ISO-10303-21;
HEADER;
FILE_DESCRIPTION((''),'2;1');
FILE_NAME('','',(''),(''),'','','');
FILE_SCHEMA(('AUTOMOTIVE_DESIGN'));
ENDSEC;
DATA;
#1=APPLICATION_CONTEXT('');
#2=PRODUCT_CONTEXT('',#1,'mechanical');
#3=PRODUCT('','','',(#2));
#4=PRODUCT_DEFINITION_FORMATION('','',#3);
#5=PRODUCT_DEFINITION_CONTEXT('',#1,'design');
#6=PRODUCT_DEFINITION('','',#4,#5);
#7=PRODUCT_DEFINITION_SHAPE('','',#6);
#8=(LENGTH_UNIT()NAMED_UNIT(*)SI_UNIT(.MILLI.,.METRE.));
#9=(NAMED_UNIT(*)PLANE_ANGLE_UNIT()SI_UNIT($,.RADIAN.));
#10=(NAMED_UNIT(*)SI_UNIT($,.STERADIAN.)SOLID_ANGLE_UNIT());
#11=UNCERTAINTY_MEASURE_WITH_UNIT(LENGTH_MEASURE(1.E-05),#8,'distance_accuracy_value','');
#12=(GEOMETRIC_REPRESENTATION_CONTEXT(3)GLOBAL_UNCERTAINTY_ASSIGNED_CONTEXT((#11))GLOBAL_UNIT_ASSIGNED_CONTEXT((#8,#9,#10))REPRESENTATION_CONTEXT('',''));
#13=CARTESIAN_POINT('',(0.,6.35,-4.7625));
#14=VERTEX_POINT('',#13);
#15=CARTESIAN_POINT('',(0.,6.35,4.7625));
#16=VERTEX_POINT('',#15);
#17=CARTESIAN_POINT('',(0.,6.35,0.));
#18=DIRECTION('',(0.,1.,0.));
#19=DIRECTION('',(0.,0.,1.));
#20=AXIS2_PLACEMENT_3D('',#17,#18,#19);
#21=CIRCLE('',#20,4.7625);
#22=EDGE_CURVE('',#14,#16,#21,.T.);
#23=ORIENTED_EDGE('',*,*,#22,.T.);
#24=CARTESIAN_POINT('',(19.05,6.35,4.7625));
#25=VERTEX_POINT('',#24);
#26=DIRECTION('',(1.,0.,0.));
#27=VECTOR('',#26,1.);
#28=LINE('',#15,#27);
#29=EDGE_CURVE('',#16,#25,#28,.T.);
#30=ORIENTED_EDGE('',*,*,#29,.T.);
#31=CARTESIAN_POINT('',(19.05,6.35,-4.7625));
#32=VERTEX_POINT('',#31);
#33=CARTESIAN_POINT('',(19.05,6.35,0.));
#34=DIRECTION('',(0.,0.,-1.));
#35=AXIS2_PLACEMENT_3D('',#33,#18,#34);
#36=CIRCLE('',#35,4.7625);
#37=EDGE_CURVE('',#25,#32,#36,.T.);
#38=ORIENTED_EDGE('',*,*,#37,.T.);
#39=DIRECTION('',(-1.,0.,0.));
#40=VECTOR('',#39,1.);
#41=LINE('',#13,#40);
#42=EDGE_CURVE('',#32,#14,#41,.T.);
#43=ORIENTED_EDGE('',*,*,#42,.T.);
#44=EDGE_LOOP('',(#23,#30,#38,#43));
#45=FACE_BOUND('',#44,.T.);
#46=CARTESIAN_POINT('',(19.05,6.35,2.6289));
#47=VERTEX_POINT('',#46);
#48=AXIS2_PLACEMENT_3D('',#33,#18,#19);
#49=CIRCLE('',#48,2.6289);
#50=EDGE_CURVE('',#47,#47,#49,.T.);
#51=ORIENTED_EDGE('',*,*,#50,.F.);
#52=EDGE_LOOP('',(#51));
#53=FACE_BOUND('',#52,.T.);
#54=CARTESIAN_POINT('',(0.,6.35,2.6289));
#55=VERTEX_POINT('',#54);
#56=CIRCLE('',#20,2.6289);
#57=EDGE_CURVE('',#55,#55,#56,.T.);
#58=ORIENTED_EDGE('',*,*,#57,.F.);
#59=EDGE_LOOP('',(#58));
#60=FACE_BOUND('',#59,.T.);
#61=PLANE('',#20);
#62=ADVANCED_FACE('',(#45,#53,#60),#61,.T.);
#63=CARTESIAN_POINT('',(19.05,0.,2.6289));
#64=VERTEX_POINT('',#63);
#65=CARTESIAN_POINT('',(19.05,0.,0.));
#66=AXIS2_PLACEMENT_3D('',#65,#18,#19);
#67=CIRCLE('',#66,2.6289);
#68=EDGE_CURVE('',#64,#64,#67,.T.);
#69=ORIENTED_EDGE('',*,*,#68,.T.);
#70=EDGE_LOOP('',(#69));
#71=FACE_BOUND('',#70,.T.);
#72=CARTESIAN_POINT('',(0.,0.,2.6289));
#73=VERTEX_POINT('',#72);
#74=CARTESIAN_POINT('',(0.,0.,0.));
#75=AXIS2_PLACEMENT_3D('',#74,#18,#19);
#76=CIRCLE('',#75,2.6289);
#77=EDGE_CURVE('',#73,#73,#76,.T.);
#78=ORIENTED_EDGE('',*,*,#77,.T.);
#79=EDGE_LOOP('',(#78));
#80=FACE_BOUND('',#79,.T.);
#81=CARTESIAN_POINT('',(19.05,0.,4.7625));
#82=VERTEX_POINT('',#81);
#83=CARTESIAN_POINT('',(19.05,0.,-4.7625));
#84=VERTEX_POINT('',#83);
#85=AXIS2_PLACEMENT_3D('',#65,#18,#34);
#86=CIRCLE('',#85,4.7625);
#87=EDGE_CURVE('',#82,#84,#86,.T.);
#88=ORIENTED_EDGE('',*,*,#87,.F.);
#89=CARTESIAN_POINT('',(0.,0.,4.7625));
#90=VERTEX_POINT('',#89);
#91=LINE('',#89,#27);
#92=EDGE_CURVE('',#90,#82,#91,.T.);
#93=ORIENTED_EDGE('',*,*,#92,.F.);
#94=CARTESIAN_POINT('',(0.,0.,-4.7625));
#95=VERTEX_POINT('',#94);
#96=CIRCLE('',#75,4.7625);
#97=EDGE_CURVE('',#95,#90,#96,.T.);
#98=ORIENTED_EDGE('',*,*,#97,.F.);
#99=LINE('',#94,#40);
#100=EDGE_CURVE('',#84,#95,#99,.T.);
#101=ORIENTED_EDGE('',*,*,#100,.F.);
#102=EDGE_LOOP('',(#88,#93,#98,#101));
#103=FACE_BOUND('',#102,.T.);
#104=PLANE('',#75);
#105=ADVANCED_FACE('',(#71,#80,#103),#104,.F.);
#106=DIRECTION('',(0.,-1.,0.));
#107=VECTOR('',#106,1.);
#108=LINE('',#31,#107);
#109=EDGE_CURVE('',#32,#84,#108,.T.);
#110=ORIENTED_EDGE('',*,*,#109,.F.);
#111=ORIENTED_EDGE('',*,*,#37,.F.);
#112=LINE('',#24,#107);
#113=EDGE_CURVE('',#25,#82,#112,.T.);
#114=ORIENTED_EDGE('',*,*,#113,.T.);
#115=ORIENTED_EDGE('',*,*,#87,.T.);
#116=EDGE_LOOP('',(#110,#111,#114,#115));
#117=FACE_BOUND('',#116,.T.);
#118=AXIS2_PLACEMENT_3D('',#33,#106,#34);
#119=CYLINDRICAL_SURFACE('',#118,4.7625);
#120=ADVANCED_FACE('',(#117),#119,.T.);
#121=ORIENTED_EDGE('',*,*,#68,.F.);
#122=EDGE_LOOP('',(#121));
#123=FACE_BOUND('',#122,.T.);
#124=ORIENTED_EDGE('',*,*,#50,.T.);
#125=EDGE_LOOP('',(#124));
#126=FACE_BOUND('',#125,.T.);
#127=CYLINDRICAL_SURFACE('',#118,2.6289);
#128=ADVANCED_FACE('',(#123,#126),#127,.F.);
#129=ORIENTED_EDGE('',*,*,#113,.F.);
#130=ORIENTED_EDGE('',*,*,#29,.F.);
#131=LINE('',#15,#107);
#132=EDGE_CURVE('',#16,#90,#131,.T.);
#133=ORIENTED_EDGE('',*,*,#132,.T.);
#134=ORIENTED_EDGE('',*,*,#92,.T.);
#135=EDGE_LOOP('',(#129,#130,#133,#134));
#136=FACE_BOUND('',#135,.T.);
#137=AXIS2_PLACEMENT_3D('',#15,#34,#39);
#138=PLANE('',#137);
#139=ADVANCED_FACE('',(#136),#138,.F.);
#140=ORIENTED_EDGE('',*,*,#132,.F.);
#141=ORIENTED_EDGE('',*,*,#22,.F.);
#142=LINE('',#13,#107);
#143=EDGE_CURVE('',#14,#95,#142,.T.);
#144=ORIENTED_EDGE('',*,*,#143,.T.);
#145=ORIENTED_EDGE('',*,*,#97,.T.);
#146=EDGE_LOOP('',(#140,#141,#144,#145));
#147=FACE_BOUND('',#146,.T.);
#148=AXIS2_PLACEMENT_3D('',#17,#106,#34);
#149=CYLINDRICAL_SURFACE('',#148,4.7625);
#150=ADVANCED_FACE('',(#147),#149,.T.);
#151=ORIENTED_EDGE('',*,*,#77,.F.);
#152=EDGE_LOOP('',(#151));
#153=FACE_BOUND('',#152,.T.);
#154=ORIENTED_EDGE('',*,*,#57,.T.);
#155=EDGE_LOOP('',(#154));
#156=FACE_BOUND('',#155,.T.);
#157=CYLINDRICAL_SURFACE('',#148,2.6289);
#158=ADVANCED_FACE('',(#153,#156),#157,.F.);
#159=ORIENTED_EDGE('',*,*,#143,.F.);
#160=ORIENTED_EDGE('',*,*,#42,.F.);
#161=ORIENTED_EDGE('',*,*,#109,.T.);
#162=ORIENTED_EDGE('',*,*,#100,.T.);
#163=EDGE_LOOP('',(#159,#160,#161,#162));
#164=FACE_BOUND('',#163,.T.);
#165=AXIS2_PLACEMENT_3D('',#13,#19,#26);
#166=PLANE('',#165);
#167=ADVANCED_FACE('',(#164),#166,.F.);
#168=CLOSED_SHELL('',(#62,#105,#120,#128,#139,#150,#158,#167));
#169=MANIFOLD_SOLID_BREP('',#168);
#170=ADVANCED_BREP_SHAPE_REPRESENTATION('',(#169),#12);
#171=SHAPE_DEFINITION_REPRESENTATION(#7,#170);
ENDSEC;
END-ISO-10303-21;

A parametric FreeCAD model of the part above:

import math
import FreeCAD as App
import Part
import Sketcher
Q = App.Units.Quantity

doc = App.newDocument("Part")
body = doc.addObject("PartDesign::Body", "Body")

sketch1 = doc.addObject("Sketcher::SketchObject", "Sketch")
body.addObject(sketch1)
sketch1.AttachmentSupport = (doc.XZ_Plane, [""])
sketch1.MapMode = "FlatFace"
sketch1.addGeometry(Part.LineSegment(App.Vector(19.1, -4.8, 0), App.Vector(0, -4.8, 0)), False)
sketch1.addGeometry(Part.ArcOfCircle(Part.Circle(App.Vector(0, 0, 0), App.Vector(0, 0, 1), 4.8), math.radians(90), math.radians(270)), False)
sketch1.addGeometry(Part.LineSegment(App.Vector(0, 4.8, 0), App.Vector(19.1, 4.8, 0)), False)
sketch1.addGeometry(Part.ArcOfCircle(Part.Circle(App.Vector(19.1, 0, 0), App.Vector(0, 0, 1), 4.8), math.radians(-90), math.radians(90)), False)
sketch1.addGeometry(Part.Circle(App.Vector(19.1, 0, 0), App.Vector(0, 0, 1), 2.6), False)
sketch1.addGeometry(Part.Circle(App.Vector(0, 0, 0), App.Vector(0, 0, 1), 2.6), False)
sketch1.addConstraint(Sketcher.Constraint("Tangent", 0, 2, 1, 2))
sketch1.addConstraint(Sketcher.Constraint("Tangent", 1, 1, 2, 1))
sketch1.addConstraint(Sketcher.Constraint("Tangent", 2, 2, 3, 2))
sketch1.addConstraint(Sketcher.Constraint("Tangent", 3, 1, 0, 1))
sketch1.addConstraint(Sketcher.Constraint("Horizontal", 0))
sketch1.addConstraint(Sketcher.Constraint("Horizontal", 2))
sketch1.addConstraint(Sketcher.Constraint("Coincident", 1, 3, -1, 1))
sketch1.addConstraint(Sketcher.Constraint("Coincident", 5, 3, -1, 1))
sketch1.addConstraint(Sketcher.Constraint("Coincident", 4, 3, 3, 3))
sketch1.addConstraint(Sketcher.Constraint("Equal", 4, 5))
sketch1.addConstraint(Sketcher.Constraint("Diameter", 4, Q("0.207 in")))
sketch1.addConstraint(Sketcher.Constraint("Radius", 1, Q("0.1875 in")))
sketch1.addConstraint(Sketcher.Constraint("DistanceX", 0, 2, 0, 1, Q("0.75 in")))
pad1 = doc.addObject("PartDesign::Pad", "Pad")
body.addObject(pad1)
pad1.Profile = sketch1
pad1.Length = Q("0.25 in")
pad1.Reversed = True

doc.recompute()
